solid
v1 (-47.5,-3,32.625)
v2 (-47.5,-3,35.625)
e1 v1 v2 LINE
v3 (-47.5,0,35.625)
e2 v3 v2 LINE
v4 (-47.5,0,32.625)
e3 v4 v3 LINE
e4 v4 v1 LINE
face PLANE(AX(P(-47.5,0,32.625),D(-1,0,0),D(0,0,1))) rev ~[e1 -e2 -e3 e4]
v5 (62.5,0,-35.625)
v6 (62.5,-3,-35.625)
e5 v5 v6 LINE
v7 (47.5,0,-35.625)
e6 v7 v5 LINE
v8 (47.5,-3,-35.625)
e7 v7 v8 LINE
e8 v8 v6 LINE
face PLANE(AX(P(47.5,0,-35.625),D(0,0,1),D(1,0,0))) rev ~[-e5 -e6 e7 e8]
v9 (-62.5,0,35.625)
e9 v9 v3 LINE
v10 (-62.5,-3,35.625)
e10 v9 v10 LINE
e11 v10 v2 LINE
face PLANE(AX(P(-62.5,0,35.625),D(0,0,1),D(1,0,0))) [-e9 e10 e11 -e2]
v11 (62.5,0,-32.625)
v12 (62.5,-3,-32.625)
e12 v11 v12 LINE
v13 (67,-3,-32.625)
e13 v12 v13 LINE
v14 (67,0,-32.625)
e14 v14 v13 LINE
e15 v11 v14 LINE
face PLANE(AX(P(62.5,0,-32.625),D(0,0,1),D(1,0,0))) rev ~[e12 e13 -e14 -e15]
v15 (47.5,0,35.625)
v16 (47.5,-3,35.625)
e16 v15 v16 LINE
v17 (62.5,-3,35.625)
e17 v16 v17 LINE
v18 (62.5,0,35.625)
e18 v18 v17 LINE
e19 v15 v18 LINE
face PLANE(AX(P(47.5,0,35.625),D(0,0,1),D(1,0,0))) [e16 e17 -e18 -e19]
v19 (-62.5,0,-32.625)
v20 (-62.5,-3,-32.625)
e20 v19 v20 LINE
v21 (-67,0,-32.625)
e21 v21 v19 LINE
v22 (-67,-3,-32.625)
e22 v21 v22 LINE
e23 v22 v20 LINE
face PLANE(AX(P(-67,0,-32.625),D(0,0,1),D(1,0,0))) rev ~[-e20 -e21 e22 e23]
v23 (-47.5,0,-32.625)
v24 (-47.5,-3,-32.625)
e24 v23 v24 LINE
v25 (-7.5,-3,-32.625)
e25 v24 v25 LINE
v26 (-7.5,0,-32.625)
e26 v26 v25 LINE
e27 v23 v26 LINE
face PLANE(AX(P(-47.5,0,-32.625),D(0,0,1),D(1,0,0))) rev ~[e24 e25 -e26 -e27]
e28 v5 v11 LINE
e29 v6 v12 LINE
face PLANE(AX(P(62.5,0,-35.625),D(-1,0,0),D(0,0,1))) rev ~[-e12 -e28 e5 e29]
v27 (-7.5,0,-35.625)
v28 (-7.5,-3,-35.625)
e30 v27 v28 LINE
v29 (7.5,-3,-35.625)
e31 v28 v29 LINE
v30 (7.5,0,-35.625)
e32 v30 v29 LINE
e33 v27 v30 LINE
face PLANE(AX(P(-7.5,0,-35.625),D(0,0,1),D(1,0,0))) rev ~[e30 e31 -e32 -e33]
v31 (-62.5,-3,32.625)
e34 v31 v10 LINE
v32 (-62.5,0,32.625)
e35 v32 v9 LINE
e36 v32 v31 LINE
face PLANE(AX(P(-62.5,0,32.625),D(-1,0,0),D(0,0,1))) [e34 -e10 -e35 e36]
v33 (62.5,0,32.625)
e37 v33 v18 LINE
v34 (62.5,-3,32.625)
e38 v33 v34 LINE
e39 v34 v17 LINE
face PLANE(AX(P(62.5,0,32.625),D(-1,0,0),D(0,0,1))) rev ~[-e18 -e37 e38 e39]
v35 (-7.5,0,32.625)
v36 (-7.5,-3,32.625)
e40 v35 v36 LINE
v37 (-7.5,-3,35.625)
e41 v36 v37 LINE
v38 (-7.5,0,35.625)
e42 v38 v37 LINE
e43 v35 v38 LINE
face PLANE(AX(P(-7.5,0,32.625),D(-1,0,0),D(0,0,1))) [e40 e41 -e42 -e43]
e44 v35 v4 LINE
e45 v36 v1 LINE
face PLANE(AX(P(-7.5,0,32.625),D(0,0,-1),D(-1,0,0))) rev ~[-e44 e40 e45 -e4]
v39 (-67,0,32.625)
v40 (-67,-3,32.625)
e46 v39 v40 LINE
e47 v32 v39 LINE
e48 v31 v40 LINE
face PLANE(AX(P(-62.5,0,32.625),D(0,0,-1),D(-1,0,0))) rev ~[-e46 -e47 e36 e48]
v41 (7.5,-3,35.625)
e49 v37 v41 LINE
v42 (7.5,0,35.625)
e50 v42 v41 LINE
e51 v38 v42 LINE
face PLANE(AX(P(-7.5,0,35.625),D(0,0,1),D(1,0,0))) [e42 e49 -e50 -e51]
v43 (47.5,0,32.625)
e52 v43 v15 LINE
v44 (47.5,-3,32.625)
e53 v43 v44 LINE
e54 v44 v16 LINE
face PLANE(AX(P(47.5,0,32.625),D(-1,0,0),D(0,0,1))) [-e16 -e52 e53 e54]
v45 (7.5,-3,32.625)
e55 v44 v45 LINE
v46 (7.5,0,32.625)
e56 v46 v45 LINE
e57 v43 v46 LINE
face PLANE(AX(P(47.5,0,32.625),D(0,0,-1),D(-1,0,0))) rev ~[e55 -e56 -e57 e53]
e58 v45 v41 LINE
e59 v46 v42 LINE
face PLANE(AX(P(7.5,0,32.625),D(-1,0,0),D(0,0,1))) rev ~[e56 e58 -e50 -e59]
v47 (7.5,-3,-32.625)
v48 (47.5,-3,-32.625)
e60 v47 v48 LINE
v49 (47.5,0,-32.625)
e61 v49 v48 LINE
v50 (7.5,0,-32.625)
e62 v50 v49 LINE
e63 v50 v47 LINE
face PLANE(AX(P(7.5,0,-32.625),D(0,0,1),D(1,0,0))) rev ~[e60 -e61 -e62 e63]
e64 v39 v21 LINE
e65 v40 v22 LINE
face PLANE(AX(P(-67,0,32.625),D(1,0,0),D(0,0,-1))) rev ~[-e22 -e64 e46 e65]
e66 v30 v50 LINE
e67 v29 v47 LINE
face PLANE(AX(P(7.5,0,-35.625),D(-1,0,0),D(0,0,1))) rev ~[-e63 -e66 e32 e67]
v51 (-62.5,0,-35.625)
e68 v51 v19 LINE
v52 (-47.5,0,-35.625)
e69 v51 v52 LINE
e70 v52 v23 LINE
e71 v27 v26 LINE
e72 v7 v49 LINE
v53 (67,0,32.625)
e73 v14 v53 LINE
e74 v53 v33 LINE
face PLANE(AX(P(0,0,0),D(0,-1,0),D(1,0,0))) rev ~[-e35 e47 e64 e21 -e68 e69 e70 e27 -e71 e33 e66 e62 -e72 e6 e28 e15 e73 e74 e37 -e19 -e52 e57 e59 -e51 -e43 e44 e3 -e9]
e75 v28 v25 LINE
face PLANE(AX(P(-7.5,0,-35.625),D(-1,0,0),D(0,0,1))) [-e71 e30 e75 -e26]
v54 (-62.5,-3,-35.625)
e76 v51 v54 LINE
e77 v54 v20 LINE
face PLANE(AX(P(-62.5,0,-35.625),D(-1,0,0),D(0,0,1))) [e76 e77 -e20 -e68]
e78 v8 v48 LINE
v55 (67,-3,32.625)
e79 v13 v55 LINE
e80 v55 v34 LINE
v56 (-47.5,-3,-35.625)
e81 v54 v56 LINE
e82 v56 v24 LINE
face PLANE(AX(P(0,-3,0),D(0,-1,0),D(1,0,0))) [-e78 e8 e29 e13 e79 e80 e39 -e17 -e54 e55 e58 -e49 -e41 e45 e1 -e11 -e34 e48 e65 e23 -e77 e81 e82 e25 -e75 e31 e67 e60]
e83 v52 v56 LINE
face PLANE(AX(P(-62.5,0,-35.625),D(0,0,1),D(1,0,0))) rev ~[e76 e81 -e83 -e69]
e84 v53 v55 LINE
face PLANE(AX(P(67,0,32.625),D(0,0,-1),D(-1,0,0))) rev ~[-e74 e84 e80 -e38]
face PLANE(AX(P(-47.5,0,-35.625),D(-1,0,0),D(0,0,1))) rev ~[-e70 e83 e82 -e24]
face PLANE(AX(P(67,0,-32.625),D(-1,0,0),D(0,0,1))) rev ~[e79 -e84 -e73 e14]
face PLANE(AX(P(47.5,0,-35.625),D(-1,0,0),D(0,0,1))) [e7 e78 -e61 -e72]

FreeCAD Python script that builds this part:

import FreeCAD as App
import Part
import Sketcher

V = App.Vector
Q = App.Units.Quantity


def add_polygon(sketch, points):
    """Adds a closed chain of lines whose ends are joined by coincident constraints."""
    first, n = sketch.GeometryCount, len(points)
    for a, b in zip(points, points[1:] + points[:1]):
        sketch.addGeometry(Part.LineSegment(App.Vector(*a, 0), App.Vector(*b, 0)), False)
    for i in range(n):
        sketch.addConstraint(Sketcher.Constraint("Coincident", first + i, 2, first + (i + 1) % n, 1))

doc = App.newDocument("Part")
body = doc.addObject("PartDesign::Body", "Body")

sketch1 = body.newObject("Sketcher::SketchObject", "Sketch")
sketch1.AttachmentSupport = (doc.getObject("XZ_Plane"), [""])
sketch1.MapMode = "FlatFace"
add_polygon(sketch1, [(-67, 32.625), (-67, -32.625), (-62.5, -32.625), (-62.5, -35.625), (-47.5, -35.625), (-47.5, -32.625), (-7.5, -32.625), (-7.5, -35.625), (7.5, -35.625), (7.5, -32.625), (47.5, -32.625), (47.5, -35.625), (62.5, -35.625), (62.5, -32.625), (67, -32.625), (67, 32.625), (62.5, 32.625), (62.5, 35.625), (47.5, 35.625), (47.5, 32.625), (7.5, 32.625), (7.5, 35.625), (-7.5, 35.625), (-7.5, 32.625), (-47.5, 32.625), (-47.5, 35.625), (-62.5, 35.625), (-62.5, 32.625)])
sketch1.addConstraint([
    Sketcher.Constraint("Vertical", 0),
    Sketcher.Constraint("Horizontal", 1),
    Sketcher.Constraint("Vertical", 2),
    Sketcher.Constraint("Horizontal", 3),
    Sketcher.Constraint("Vertical", 4),
    Sketcher.Constraint("Horizontal", 5),
    Sketcher.Constraint("Vertical", 6),
    Sketcher.Constraint("Horizontal", 7),
    Sketcher.Constraint("Vertical", 8),
    Sketcher.Constraint("Horizontal", 9),
    Sketcher.Constraint("Vertical", 10),
    Sketcher.Constraint("Horizontal", 11),
    Sketcher.Constraint("Vertical", 12),
    Sketcher.Constraint("Horizontal", 13),
    Sketcher.Constraint("Vertical", 14),
    Sketcher.Constraint("Horizontal", 15),
    Sketcher.Constraint("Vertical", 16),
    Sketcher.Constraint("Horizontal", 17),
    Sketcher.Constraint("Vertical", 18),
    Sketcher.Constraint("Horizontal", 19),
    Sketcher.Constraint("Vertical", 20),
    Sketcher.Constraint("Horizontal", 21),
    Sketcher.Constraint("Vertical", 22),
    Sketcher.Constraint("Horizontal", 23),
    Sketcher.Constraint("Vertical", 24),
    Sketcher.Constraint("Horizontal", 25),
    Sketcher.Constraint("Vertical", 26),
    Sketcher.Constraint("Horizontal", 27),
    Sketcher.Constraint("Symmetric", 0, 2, 14, 2, -1, 1),
    Sketcher.Constraint("Symmetric", 2, 2, 16, 2, -1, 1),
    Sketcher.Constraint("Symmetric", 4, 2, 18, 2, -1, 1),
    Sketcher.Constraint("Symmetric", 6, 2, 20, 2, -1, 1),
    Sketcher.Constraint("Symmetric", 8, 2, 22, 2, -1, 1),
    Sketcher.Constraint("Symmetric", 10, 2, 24, 2, -1, 1),
    Sketcher.Constraint("Symmetric", 12, 2, 26, 2, -1, 1),
    Sketcher.Constraint("Symmetric", 5, 2, 8, 2, -2),
    Sketcher.Constraint("Symmetric", 3, 2, 10, 2, -2),
    Sketcher.Constraint("Symmetric", 1, 2, 12, 2, -2),
    Sketcher.Constraint("Horizontal", 1, 2, 4, 2),
    Sketcher.Constraint("Horizontal", 3, 2, 6, 2),
    Sketcher.Constraint("Equal", 3, 7),
    Sketcher.Constraint("DistanceX", 3, 1, 3, 2, Q("15 mm")),
    Sketcher.Constraint("DistanceX", 5, 1, 5, 2, Q("40 mm")),
    Sketcher.Constraint("DistanceY", 2, 2, 2, 1, Q("3 mm")),
    Sketcher.Constraint("DistanceX", 1, 1, 1, 2, Q("4.5 mm")),
    Sketcher.Constraint("DistanceY", 0, 2, 0, 1, Q("65.25 mm")),
])
pad1 = body.newObject("PartDesign::Pad", "Pad")
pad1.Profile = sketch1
pad1.Length = 3

doc.recompute()
